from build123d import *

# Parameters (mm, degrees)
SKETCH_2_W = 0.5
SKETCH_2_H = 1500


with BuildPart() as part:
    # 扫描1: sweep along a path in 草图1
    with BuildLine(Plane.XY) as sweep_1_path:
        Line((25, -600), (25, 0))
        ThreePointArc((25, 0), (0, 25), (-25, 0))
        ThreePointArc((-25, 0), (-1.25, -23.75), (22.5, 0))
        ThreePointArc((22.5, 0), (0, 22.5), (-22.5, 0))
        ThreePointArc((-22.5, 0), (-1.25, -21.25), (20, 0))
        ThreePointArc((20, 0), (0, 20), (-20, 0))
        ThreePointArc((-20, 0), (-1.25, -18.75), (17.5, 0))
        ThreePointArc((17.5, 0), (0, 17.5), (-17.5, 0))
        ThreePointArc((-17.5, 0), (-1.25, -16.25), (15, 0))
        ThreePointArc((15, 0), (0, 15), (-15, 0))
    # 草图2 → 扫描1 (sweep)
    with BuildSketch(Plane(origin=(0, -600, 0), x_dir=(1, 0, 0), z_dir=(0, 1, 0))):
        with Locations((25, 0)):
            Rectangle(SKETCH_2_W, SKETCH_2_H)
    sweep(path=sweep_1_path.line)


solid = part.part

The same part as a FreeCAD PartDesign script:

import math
import FreeCAD as App
import Part
import Sketcher

V = App.Vector

doc = App.newDocument("Part")
params = doc.addObject("Spreadsheet::Sheet", "Params")
for row, (alias, value) in enumerate([
    ("sketch1_height", "1500 mm"),
    ("sketch1_width", "0.5 mm"),
    ("sketch2_radius", "25 mm"),
    ("sketch2_radius2", "20 mm"),
    ("sketch2_height", "600 mm"),
], start=1):
    params.set(f"A{row}", alias)
    params.set(f"B{row}", "=" + value)
    params.setAlias(f"B{row}", alias)

body = doc.addObject("PartDesign::Body", "Body")

# Sketch on XZ plane
sketch1 = body.newObject("Sketcher::SketchObject", "Sketch")
sketch1.AttachmentSupport = (doc.getObject("XZ_Plane"), [""])
sketch1.MapMode = "FlatFace"
sketch1.AttachmentOffset = App.Placement(V(0, 0, 600), App.Rotation())
sketch1.addGeometry(Part.LineSegment(V(24.75, -750, 0), V(24.75, 750, 0)), False)
sketch1.addGeometry(Part.LineSegment(V(24.75, 750, 0), V(25.25, 750, 0)), False)
sketch1.addGeometry(Part.LineSegment(V(25.25, 750, 0), V(25.25, -750, 0)), False)
sketch1.addGeometry(Part.LineSegment(V(25.25, -750, 0), V(24.75, -750, 0)), False)
sketch1.addConstraint(Sketcher.Constraint("Coincident", 0, 2, 1, 1))
sketch1.addConstraint(Sketcher.Constraint("Coincident", 1, 2, 2, 1))
sketch1.addConstraint(Sketcher.Constraint("Coincident", 2, 2, 3, 1))
sketch1.addConstraint(Sketcher.Constraint("Coincident", 3, 2, 0, 1))
sketch1.addConstraint(Sketcher.Constraint("Vertical", 0))
sketch1.addConstraint(Sketcher.Constraint("Horizontal", 1))
sketch1.addConstraint(Sketcher.Constraint("Vertical", 2))
sketch1.addConstraint(Sketcher.Constraint("Horizontal", 3))
sketch1.addConstraint(Sketcher.Constraint("DistanceY", 0, 1, 0, 2, 1500.0))
sketch1.addConstraint(Sketcher.Constraint("DistanceX", 1, 1, 1, 2, 0.5))
sketch1.addConstraint(Sketcher.Constraint("DistanceY", -1, 1, 0, 2, 750.0))
sketch1.addConstraint(Sketcher.Constraint("DistanceX", -1, 1, 0, 2, 24.75))
sketch1.setExpression("Constraints[8]", "Params.sketch1_height")
sketch1.setExpression("Constraints[9]", "Params.sketch1_width")

# Sketch on XY plane
sketch2 = body.newObject("Sketcher::SketchObject", "Sketch001")
sketch2.AttachmentSupport = (doc.getObject("XY_Plane"), [""])
sketch2.MapMode = "FlatFace"
sketch2.addGeometry(Part.LineSegment(V(25, -600, 0), V(25, 0, 0)), False)
sketch2.addGeometry(Part.ArcOfCircle(Part.Circle(V(0, 0, 0), V(0, 0, 1), 25), math.radians(0), math.radians(180)), False)
sketch2.addGeometry(Part.ArcOfCircle(Part.Circle(V(-1.25, 0, 0), V(0, 0, 1), 23.75), math.radians(180), math.radians(360)), False)
sketch2.addGeometry(Part.ArcOfCircle(Part.Circle(V(0, 0, 0), V(0, 0, 1), 22.5), math.radians(0), math.radians(180)), False)
sketch2.addGeometry(Part.ArcOfCircle(Part.Circle(V(-1.25, 0, 0), V(0, 0, 1), 21.25), math.radians(180), math.radians(360)), False)
sketch2.addGeometry(Part.ArcOfCircle(Part.Circle(V(0, 0, 0), V(0, 0, 1), 20), math.radians(0), math.radians(180)), False)
sketch2.addGeometry(Part.ArcOfCircle(Part.Circle(V(-1.25, 0, 0), V(0, 0, 1), 18.75), math.radians(180), math.radians(360)), False)
sketch2.addGeometry(Part.ArcOfCircle(Part.Circle(V(0, 0, 0), V(0, 0, 1), 17.5), math.radians(0), math.radians(180)), False)
sketch2.addGeometry(Part.ArcOfCircle(Part.Circle(V(-1.25, 0, 0), V(0, 0, 1), 16.25), math.radians(180), math.radians(360)), False)
sketch2.addGeometry(Part.ArcOfCircle(Part.Circle(V(0, 0, 0), V(0, 0, 1), 15), math.radians(0), math.radians(180)), False)
sketch2.addConstraint(Sketcher.Constraint("Tangent", 0, 2, 1, 1))
sketch2.addConstraint(Sketcher.Constraint("Tangent", 1, 2, 2, 1))
sketch2.addConstraint(Sketcher.Constraint("Tangent", 2, 2, 3, 1))
sketch2.addConstraint(Sketcher.Constraint("Tangent", 3, 2, 4, 1))
sketch2.addConstraint(Sketcher.Constraint("Tangent", 4, 2, 5, 1))
sketch2.addConstraint(Sketcher.Constraint("Tangent", 5, 2, 6, 1))
sketch2.addConstraint(Sketcher.Constraint("Tangent", 6, 2, 7, 1))
sketch2.addConstraint(Sketcher.Constraint("Tangent", 7, 2, 8, 1))
sketch2.addConstraint(Sketcher.Constraint("Tangent", 8, 2, 9, 1))
sketch2.addConstraint(Sketcher.Constraint("Vertical", 0))
sketch2.addConstraint(Sketcher.Constraint("Coincident", 1, 3, -1, 1))
sketch2.addConstraint(Sketcher.Constraint("Coincident", 3, 3, -1, 1))
sketch2.addConstraint(Sketcher.Constraint("Coincident", 5, 3, -1, 1))
sketch2.addConstraint(Sketcher.Constraint("Coincident", 7, 3, -1, 1))
sketch2.addConstraint(Sketcher.Constraint("Coincident", 9, 3, -1, 1))
sketch2.addConstraint(Sketcher.Constraint("Coincident", 4, 3, 2, 3))
sketch2.addConstraint(Sketcher.Constraint("Coincident", 6, 3, 2, 3))
sketch2.addConstraint(Sketcher.Constraint("Coincident", 8, 3, 2, 3))
sketch2.addConstraint(Sketcher.Constraint("PointOnObject", 2, 3, -1))
sketch2.addConstraint(Sketcher.Constraint("PointOnObject", 9, 2, -1))
sketch2.addConstraint(Sketcher.Constraint("Radius", 1, 25.0))
sketch2.addConstraint(Sketcher.Constraint("Radius", 5, 20.0))
sketch2.addConstraint(Sketcher.Constraint("DistanceY", 0, 1, 0, 2, 600.0))
sketch2.setExpression("Constraints[20]", "Params.sketch2_radius")
sketch2.setExpression("Constraints[21]", "Params.sketch2_radius2")
sketch2.setExpression("Constraints[22]", "Params.sketch2_height")
doc.recompute()

additivepipe = body.newObject("PartDesign::AdditivePipe", "AdditivePipe")
additivepipe.Profile = sketch1
additivepipe.Spine = (sketch2, ["Edge1", "Edge2", "Edge3", "Edge4", "Edge5", "Edge6", "Edge7", "Edge8", "Edge9", "Edge10"])

doc.recompute()
